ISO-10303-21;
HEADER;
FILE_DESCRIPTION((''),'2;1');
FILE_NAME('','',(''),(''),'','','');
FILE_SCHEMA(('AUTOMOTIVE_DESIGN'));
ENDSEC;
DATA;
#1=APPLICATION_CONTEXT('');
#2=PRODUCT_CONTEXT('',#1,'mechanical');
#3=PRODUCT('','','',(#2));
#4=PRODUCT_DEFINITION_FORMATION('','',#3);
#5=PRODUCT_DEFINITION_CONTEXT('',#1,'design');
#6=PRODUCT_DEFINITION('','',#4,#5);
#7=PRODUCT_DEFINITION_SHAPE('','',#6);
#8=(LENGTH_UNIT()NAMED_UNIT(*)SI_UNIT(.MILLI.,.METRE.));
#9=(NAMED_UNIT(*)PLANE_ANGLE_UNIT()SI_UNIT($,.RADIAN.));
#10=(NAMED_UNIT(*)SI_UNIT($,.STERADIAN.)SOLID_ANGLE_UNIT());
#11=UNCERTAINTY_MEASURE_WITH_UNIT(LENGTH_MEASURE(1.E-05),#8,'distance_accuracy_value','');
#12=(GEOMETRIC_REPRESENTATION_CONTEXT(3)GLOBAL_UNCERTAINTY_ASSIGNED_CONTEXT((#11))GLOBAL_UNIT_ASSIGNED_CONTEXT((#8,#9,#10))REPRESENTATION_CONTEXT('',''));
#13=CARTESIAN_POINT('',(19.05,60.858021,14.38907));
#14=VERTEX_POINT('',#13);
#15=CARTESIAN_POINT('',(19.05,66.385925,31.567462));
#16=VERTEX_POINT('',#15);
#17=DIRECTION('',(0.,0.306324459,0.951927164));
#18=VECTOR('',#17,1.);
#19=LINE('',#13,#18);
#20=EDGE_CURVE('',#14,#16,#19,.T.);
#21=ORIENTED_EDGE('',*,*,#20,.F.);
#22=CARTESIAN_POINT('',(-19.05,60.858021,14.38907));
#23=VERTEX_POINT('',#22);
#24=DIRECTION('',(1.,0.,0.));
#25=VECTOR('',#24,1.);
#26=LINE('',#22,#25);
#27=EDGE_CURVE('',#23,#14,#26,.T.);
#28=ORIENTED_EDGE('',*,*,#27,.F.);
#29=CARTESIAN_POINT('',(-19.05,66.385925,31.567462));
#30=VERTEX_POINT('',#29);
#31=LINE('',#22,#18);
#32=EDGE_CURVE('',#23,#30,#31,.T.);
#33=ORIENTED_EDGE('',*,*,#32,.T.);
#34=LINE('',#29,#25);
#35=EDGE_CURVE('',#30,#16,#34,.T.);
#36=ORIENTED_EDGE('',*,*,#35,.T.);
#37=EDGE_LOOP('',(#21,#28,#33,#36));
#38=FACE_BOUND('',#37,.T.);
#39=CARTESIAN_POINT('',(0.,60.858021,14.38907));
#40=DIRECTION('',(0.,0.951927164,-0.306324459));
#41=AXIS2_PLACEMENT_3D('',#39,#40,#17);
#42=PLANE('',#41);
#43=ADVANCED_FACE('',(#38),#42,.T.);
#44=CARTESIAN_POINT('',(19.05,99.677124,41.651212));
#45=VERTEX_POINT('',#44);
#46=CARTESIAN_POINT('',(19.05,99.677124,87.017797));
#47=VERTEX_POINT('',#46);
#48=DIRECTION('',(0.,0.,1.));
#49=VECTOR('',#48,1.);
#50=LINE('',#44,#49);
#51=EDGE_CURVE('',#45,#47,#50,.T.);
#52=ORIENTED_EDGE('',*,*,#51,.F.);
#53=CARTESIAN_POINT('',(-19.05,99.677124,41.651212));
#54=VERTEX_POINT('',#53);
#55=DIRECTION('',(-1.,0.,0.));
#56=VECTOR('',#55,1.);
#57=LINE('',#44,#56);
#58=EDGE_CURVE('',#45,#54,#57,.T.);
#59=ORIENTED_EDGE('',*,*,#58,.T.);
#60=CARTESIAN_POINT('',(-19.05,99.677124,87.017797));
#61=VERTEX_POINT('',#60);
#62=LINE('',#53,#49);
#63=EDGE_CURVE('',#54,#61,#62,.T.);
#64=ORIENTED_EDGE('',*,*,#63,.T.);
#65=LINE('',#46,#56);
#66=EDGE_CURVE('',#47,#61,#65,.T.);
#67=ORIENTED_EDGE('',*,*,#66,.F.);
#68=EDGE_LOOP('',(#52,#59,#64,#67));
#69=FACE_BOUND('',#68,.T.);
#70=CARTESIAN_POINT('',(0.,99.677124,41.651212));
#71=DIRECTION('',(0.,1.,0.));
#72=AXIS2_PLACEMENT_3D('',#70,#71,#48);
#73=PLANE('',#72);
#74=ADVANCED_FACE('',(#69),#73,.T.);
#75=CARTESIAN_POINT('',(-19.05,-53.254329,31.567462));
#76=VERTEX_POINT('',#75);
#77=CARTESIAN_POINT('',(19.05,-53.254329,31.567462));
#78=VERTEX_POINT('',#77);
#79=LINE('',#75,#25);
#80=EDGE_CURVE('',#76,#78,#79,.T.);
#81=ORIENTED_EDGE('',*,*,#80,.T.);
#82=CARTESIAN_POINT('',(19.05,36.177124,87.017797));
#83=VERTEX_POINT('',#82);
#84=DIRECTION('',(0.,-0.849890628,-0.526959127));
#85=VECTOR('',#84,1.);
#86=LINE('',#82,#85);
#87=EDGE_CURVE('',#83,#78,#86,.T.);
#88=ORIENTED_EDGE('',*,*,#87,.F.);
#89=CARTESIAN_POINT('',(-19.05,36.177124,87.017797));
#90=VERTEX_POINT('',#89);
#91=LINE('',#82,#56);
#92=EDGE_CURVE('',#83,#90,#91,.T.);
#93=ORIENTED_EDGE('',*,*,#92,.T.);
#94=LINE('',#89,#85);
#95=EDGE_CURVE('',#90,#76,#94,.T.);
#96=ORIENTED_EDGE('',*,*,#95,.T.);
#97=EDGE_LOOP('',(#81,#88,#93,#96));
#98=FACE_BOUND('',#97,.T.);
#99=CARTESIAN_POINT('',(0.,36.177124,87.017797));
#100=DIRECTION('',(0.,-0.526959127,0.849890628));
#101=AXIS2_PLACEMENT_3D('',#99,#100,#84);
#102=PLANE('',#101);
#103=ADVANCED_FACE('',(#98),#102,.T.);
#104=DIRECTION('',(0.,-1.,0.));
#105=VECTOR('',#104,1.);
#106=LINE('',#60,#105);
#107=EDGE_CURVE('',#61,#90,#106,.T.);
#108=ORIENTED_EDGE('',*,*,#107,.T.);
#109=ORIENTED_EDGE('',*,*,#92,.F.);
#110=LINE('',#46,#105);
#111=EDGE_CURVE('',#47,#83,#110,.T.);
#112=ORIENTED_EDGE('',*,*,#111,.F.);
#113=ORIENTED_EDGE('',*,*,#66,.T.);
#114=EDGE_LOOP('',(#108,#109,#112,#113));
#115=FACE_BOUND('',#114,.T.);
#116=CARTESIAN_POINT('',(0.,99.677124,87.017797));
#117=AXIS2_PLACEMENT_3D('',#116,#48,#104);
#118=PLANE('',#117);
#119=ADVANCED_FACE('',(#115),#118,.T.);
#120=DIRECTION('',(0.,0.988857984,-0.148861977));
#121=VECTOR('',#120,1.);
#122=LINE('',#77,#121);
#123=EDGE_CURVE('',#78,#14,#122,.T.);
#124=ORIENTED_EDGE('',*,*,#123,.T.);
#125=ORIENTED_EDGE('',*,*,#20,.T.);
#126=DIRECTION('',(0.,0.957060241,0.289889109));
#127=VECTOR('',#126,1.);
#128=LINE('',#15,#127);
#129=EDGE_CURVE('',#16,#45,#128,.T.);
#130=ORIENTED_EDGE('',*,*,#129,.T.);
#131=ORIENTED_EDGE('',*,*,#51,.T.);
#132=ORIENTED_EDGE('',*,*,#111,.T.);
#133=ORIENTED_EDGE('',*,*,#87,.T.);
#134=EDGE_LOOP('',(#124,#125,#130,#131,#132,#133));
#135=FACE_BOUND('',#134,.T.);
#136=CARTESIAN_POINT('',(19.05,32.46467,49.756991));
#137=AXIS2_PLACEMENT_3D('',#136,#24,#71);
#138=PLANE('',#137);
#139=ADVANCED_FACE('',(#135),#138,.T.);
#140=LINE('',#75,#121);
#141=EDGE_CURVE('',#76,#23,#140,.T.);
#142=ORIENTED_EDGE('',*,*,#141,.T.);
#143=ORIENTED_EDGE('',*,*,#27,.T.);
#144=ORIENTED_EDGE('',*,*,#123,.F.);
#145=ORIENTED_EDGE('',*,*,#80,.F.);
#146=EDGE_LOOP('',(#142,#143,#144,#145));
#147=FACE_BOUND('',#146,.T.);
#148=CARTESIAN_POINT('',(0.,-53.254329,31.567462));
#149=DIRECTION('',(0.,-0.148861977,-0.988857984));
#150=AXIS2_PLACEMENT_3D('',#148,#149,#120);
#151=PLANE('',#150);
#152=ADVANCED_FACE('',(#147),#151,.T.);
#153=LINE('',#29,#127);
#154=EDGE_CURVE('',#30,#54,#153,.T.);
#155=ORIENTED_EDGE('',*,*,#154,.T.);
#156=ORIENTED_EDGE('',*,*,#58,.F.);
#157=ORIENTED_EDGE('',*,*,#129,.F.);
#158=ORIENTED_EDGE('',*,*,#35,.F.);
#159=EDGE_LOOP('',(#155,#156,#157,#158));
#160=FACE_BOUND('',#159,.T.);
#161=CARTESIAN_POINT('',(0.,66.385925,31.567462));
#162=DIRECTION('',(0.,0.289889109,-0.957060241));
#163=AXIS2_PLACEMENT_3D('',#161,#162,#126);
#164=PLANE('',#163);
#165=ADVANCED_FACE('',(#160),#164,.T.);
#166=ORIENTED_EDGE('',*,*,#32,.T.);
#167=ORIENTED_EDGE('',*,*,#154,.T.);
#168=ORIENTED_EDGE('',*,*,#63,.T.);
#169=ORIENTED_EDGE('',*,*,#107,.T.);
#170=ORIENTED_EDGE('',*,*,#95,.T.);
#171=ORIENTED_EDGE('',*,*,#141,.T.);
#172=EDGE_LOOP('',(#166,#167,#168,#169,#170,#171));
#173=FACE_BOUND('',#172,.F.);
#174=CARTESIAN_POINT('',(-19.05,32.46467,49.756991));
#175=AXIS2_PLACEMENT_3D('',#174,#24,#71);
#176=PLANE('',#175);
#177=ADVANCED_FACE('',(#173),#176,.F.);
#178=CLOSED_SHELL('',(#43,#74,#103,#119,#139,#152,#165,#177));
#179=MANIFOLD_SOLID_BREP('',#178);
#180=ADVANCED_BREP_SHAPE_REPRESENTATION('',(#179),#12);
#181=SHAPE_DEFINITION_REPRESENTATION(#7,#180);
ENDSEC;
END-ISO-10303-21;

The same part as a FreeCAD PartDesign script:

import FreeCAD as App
import Part
import Sketcher
Q = App.Units.Quantity


def add_polygon(sketch, points):
    """Adds a closed chain of lines whose ends are joined by coincident constraints."""
    first, n = sketch.GeometryCount, len(points)
    for a, b in zip(points, points[1:] + points[:1]):
        sketch.addGeometry(Part.LineSegment(App.Vector(*a, 0), App.Vector(*b, 0)), False)
    for i in range(n):
        sketch.addConstraint(Sketcher.Constraint("Coincident", first + i, 2, first + (i + 1) % n, 1))

doc = App.newDocument("Part")
body = doc.addObject("PartDesign::Body", "Body")

# Sketch on YZ plane
sketch1 = doc.addObject("Sketcher::SketchObject", "Sketch")
body.addObject(sketch1)
sketch1.AttachmentSupport = (doc.YZ_Plane, [""])
sketch1.MapMode = "FlatFace"
add_polygon(sketch1, [(36, 87), (-53, 32), (61, 14), (66, 32), (100, 42), (100, 87)])  # lines 0-5
sketch1.addConstraint([
    Sketcher.Constraint("Vertical", 4),
    Sketcher.Constraint("Horizontal", 5),
    Sketcher.Constraint("Horizontal", 0, 2, 2, 2),
    Sketcher.Constraint("DistanceX", 5, 2, 5, 1, Q("2.5 in")),
    Sketcher.Constraint("DistanceX", 2, 2, 3, 2, Q("33.2912 mm")),
    Sketcher.Constraint("Distance", 2, Q("18.04591 mm")),
    Sketcher.Constraint("DistanceY", 4, 1, 4, 2, Q("45.366585 mm")),
    Sketcher.Constraint("DistanceX", 0, 2, -1, 1, Q("53.254329 mm")),
    Sketcher.Constraint("DistanceY", -1, 1, 0, 2, Q("31.567462 mm")),
    Sketcher.Constraint("DistanceX", -1, 1, 1, 2, Q("60.858021 mm")),
    Sketcher.Constraint("DistanceY", -1, 1, 1, 2, Q("14.38907 mm")),
    Sketcher.Constraint("DistanceY", -1, 1, 3, 2, Q("41.651212 mm")),
])
pad1 = doc.addObject("PartDesign::Pad", "Pad")
body.addObject(pad1)
pad1.Profile = sketch1
pad1.Length = Q("1.5 in")
pad1.Midplane = True

# Sketch on YZ plane
sketch2 = doc.addObject("Sketcher::SketchObject", "Sketch001")
body.addObject(sketch2)
sketch2.AttachmentSupport = (doc.YZ_Plane, [""])
sketch2.MapMode = "FlatFace"
add_polygon(sketch2, [(36, 87), (-53, 32), (61, 14), (66, 32), (100, 42), (100, 87)])  # lines 0-5
sketch2.addConstraint([
    Sketcher.Constraint("Vertical", 4),
    Sketcher.Constraint("Horizontal", 5),
    Sketcher.Constraint("Horizontal", 0, 2, 2, 2),
    Sketcher.Constraint("DistanceX", 5, 2, 5, 1, Q("2.5 in")),
    Sketcher.Constraint("DistanceX", 2, 2, 3, 2, Q("33.2912 mm")),
    Sketcher.Constraint("Distance", 2, Q("18.04591 mm")),
    Sketcher.Constraint("DistanceY", 4, 1, 4, 2, Q("45.366585 mm")),
    Sketcher.Constraint("DistanceX", 0, 2, -1, 1, Q("53.254329 mm")),
    Sketcher.Constraint("DistanceY", -1, 1, 0, 2, Q("31.567462 mm")),
    Sketcher.Constraint("DistanceX", -1, 1, 1, 2, Q("60.858021 mm")),
    Sketcher.Constraint("DistanceY", -1, 1, 1, 2, Q("14.38907 mm")),
    Sketcher.Constraint("DistanceY", -1, 1, 3, 2, Q("41.651212 mm")),
])
pad2 = doc.addObject("PartDesign::Pad", "Pad001")
body.addObject(pad2)
pad2.Profile = sketch2
pad2.Length = Q("1.5 in")
pad2.Midplane = True

doc.recompute()
